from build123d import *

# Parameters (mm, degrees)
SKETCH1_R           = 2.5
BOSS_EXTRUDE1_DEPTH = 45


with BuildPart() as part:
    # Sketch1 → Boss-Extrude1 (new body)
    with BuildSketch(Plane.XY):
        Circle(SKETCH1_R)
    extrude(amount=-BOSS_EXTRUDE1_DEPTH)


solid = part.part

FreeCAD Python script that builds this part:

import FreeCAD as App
import Part
import Sketcher
from FreeCAD import Vector

doc = App.newDocument("Part")
params = doc.addObject("Spreadsheet::Sheet", "Params")
for row, (alias, value) in enumerate([
    ("sketch1_diameter", "5 mm"),
    ("pad1_length", "45 mm"),
], start=1):
    params.set(f"A{row}", alias)
    params.set(f"B{row}", "=" + value)
    params.setAlias(f"B{row}", alias)

body = doc.addObject("PartDesign::Body", "Body")

sketch1 = doc.addObject("Sketcher::SketchObject", "Sketch")
body.addObject(sketch1)
sketch1.AttachmentSupport = (doc.XY_Plane, [""])
sketch1.MapMode = "FlatFace"
sketch1.addGeometry(Part.Circle(Vector(0, 0, 0), Vector(0, 0, 1), 2.5), False)
sketch1.addConstraint(Sketcher.Constraint("Coincident", 0, 3, -1, 1))
sketch1.addConstraint(Sketcher.Constraint("Diameter", 0, 5.0))
sketch1.setExpression("Constraints[1]", "Params.sketch1_diameter")
pad1 = doc.addObject("PartDesign::Pad", "Pad")
body.addObject(pad1)
pad1.Profile = sketch1
pad1.setExpression("Length", "Params.pad1_length")
pad1.Reversed = True

doc.recompute()
